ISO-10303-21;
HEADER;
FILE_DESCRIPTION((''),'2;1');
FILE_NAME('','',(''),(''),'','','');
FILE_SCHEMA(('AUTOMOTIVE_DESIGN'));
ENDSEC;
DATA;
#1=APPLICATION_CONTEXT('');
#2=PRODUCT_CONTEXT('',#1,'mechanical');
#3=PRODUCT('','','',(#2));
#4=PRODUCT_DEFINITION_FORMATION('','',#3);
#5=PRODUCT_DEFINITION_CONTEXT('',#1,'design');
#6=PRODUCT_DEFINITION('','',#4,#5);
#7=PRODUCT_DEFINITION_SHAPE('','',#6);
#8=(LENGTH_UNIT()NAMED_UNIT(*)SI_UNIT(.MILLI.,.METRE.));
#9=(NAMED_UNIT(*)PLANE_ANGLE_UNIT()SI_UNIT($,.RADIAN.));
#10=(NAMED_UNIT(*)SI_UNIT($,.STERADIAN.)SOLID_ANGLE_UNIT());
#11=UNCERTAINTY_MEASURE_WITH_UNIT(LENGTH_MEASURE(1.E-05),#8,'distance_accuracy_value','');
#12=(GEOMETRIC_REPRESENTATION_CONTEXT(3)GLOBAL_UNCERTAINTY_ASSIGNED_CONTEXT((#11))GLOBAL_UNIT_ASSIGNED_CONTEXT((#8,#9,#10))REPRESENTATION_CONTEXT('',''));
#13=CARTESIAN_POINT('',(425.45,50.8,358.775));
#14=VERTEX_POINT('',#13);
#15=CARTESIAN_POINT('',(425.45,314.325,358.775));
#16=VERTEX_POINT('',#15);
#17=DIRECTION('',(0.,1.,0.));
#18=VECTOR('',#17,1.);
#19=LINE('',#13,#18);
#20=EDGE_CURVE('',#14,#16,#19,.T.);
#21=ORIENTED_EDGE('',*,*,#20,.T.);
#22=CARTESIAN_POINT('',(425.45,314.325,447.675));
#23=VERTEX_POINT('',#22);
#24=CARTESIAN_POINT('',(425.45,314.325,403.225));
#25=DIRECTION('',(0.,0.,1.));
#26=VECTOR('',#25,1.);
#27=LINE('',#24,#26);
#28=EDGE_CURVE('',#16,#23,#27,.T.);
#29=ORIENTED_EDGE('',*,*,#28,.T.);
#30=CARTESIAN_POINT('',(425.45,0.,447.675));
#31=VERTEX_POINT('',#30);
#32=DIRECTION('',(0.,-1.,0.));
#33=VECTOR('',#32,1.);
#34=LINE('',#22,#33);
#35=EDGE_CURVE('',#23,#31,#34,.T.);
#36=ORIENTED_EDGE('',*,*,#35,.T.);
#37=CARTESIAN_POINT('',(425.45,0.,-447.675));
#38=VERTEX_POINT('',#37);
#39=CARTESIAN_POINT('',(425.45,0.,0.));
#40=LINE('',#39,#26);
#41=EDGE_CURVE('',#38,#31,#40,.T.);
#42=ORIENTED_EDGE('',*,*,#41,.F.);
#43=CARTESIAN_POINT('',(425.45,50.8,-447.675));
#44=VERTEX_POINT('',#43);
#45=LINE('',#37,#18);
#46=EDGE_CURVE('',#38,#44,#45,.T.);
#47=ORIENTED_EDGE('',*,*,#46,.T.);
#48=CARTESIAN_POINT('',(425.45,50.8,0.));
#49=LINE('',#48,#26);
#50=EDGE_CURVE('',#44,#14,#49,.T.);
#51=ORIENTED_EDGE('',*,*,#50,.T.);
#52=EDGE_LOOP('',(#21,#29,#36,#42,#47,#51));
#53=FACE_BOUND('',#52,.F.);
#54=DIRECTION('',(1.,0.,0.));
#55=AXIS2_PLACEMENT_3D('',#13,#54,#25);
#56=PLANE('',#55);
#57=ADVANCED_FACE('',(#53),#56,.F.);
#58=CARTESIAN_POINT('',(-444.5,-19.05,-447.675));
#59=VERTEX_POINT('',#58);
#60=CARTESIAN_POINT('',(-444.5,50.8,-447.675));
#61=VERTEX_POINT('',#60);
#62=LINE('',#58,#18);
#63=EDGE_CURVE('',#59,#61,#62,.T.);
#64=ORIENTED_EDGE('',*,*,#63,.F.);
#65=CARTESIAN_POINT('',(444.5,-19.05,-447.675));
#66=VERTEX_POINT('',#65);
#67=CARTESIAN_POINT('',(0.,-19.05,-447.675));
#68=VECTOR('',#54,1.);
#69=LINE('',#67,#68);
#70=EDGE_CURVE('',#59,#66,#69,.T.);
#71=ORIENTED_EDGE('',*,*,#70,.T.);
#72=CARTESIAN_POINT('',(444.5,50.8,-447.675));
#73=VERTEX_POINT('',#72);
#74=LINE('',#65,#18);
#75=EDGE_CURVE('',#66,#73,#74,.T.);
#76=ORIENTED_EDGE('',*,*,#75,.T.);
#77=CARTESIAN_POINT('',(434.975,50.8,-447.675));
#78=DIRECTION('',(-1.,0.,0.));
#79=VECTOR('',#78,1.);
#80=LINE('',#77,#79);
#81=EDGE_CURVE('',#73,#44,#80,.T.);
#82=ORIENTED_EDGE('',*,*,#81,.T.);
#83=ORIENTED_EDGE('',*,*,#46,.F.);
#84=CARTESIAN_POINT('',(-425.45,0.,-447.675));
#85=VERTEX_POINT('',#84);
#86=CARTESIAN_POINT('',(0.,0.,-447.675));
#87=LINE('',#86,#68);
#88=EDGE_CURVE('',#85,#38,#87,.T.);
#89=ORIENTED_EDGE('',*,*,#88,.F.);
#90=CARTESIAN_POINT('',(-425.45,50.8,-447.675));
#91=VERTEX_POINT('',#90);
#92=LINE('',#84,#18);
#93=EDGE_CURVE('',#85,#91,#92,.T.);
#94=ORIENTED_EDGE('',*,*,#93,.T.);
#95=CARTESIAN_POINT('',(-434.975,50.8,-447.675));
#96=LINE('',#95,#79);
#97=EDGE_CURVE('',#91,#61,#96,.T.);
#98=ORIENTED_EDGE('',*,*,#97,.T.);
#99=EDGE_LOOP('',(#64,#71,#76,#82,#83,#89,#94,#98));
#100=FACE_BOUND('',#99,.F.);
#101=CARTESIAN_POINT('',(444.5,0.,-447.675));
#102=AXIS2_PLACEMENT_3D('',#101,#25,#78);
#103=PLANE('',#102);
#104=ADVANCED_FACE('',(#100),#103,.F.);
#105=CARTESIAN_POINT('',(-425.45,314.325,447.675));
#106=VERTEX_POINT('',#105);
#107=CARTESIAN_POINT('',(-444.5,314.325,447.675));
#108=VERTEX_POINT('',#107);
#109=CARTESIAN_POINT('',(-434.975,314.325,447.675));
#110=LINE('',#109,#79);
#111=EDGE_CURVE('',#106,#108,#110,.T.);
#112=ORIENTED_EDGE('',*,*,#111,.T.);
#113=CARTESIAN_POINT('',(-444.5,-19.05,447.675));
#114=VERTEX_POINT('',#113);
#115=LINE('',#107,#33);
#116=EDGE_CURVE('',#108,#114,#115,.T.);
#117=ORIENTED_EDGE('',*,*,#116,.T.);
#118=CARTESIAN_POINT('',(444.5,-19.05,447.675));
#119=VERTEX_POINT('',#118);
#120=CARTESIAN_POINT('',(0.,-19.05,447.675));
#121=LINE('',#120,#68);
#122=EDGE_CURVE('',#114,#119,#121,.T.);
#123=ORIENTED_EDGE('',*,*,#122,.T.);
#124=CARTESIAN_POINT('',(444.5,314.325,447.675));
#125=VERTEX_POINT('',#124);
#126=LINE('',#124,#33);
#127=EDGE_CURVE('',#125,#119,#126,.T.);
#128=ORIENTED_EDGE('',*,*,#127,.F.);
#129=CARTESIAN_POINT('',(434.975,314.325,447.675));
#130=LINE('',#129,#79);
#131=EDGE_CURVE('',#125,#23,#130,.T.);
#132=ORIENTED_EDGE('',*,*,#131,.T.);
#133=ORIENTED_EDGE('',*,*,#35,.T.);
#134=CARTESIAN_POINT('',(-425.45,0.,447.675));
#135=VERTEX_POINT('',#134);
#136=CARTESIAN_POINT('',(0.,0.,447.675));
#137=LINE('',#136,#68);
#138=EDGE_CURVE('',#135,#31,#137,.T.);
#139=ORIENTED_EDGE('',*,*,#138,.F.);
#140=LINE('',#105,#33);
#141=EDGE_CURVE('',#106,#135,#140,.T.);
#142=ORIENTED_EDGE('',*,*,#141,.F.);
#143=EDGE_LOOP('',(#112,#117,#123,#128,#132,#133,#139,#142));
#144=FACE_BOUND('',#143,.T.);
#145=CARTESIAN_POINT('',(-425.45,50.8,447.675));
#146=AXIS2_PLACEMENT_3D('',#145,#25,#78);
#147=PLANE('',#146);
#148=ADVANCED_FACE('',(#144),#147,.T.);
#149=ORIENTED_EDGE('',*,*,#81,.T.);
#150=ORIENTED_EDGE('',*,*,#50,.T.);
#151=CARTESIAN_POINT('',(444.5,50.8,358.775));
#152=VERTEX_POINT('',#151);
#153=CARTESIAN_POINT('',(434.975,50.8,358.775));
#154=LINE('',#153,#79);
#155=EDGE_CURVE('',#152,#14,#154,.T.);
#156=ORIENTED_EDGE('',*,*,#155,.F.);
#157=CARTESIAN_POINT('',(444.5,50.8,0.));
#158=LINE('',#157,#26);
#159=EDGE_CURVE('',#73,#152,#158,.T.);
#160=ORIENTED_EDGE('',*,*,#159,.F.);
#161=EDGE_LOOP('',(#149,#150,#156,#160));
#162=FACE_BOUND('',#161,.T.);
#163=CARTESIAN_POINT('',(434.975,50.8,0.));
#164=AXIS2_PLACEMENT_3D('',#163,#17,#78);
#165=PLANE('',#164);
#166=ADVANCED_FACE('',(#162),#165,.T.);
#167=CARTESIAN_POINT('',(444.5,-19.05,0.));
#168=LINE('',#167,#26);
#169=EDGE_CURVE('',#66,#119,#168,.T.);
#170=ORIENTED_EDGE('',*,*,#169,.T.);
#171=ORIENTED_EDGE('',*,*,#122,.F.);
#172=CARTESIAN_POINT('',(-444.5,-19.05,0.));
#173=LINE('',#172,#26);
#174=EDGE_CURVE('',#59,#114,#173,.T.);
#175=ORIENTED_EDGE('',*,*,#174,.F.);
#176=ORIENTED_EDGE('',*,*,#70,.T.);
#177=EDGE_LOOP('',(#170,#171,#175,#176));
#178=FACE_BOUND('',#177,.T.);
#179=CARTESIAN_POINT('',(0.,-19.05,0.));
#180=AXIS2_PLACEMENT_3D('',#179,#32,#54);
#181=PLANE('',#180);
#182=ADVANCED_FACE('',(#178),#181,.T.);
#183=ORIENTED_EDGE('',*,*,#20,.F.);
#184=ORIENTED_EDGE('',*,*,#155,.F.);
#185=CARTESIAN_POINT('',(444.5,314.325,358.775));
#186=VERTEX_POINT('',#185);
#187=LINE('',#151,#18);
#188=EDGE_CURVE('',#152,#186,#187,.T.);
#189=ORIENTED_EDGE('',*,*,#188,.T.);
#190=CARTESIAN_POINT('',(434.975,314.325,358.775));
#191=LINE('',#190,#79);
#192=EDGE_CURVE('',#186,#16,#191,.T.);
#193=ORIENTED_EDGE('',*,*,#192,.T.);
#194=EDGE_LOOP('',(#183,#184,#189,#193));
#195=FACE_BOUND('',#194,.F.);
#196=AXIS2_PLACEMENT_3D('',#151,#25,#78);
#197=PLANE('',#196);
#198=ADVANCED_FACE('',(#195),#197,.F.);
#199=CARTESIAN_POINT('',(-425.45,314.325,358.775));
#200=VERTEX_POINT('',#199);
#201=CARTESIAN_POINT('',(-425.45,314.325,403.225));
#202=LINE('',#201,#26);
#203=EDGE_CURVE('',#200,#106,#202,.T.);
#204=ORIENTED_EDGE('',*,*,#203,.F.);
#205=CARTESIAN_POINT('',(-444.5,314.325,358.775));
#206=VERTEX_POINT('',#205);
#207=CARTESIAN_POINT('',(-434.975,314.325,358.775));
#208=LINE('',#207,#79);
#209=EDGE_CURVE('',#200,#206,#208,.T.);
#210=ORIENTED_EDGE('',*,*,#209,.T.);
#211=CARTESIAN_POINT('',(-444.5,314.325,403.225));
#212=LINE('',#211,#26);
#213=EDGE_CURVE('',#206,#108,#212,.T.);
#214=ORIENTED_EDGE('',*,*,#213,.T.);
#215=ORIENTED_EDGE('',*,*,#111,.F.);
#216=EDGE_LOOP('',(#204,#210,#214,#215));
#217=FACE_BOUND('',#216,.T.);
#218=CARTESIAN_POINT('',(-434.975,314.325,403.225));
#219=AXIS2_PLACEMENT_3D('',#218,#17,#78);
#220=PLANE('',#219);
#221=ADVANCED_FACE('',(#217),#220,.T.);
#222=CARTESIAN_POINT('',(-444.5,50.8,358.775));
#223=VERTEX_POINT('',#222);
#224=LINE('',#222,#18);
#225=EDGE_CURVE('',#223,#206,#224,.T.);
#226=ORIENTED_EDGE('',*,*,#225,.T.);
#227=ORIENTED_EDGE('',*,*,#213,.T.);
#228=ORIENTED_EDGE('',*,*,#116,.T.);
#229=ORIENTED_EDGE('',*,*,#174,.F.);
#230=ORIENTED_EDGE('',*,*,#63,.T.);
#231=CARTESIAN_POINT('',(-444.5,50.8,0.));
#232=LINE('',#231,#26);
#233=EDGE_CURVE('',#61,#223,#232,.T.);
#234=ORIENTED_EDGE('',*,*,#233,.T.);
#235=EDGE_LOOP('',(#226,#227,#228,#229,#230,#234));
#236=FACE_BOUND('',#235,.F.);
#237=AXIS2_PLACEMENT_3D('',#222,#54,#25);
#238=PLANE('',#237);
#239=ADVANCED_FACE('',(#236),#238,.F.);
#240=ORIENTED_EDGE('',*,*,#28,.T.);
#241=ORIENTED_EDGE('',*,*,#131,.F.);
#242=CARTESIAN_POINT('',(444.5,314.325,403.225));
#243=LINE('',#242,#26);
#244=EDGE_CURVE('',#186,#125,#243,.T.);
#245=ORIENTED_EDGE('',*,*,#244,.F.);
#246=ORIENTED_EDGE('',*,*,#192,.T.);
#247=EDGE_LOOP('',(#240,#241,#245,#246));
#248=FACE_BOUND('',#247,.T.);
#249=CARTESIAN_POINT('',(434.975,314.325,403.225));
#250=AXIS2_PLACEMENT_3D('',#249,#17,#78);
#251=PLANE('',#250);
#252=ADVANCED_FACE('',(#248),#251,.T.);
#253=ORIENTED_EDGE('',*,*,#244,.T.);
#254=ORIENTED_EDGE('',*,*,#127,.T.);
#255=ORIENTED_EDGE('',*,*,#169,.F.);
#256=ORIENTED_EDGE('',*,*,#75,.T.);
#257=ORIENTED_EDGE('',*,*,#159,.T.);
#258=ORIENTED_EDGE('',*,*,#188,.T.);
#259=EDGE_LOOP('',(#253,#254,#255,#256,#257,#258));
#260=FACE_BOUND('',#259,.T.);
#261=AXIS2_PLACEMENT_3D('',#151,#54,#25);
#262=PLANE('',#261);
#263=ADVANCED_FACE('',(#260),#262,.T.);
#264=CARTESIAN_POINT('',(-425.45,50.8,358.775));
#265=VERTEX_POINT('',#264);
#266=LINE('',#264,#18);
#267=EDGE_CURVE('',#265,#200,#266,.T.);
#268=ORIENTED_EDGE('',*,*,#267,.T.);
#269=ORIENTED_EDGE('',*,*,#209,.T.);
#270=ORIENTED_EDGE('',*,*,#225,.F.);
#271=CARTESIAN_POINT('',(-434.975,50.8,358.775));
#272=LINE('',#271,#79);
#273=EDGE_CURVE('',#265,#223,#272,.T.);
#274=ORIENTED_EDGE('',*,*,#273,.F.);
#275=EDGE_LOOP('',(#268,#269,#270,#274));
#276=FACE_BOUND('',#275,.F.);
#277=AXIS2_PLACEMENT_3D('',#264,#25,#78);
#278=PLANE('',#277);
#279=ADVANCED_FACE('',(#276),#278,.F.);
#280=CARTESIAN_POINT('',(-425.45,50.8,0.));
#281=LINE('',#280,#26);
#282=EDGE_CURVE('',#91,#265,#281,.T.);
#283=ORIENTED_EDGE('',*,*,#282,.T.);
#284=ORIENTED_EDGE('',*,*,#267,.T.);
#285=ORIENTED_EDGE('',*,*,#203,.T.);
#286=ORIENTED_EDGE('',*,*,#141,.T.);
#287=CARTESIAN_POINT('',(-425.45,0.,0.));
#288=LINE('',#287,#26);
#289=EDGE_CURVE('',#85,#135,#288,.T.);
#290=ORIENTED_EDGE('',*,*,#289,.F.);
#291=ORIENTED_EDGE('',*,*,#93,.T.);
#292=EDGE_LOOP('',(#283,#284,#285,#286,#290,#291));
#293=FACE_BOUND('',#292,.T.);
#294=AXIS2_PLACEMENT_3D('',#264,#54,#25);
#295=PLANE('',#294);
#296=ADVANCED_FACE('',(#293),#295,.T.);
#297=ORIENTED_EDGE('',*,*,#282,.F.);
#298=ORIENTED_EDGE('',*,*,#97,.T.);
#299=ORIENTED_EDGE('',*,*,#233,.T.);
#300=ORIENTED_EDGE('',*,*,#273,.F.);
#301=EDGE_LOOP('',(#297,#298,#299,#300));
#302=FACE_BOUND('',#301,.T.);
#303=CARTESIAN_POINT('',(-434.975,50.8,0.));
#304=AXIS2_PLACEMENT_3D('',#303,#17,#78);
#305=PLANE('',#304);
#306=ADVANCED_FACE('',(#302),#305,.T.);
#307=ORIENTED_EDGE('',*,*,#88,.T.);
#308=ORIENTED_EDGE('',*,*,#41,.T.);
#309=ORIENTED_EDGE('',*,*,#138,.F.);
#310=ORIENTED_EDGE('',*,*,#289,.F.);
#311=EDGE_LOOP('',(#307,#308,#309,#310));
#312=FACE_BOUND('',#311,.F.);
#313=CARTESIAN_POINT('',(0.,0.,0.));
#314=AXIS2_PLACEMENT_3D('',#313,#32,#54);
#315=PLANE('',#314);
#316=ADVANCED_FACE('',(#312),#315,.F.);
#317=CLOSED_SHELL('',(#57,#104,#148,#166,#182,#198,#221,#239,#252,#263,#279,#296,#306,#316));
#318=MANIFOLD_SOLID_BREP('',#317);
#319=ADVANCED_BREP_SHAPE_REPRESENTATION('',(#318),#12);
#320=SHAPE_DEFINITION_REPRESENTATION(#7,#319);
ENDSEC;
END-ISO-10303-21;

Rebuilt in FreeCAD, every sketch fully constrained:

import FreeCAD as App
import Part
import Sketcher
Q = App.Units.Quantity


def add_polygon(sketch, points):
    """Adds a closed chain of lines whose ends are joined by coincident constraints."""
    first, n = sketch.GeometryCount, len(points)
    for a, b in zip(points, points[1:] + points[:1]):
        sketch.addGeometry(Part.LineSegment(App.Vector(*a, 0), App.Vector(*b, 0)), False)
    for i in range(n):
        sketch.addConstraint(Sketcher.Constraint("Coincident", first + i, 2, first + (i + 1) % n, 1))

doc = App.newDocument("Part")
body = doc.addObject("PartDesign::Body", "Body")

sketch1 = body.newObject("Sketcher::SketchObject", "Sketch")
sketch1.AttachmentSupport = (doc.getObject("XZ_Plane"), [""])
sketch1.MapMode = "FlatFace"
add_polygon(sketch1, [(-444.5, 447.675), (-444.5, -447.675), (444.5, -447.675), (444.5, 447.675)])
sketch1.addConstraint(Sketcher.Constraint("Vertical", 0))
sketch1.addConstraint(Sketcher.Constraint("Horizontal", 1))
sketch1.addConstraint(Sketcher.Constraint("Vertical", 2))
sketch1.addConstraint(Sketcher.Constraint("Horizontal", 3))
sketch1.addConstraint(Sketcher.Constraint("Symmetric", 0, 2, 2, 2, -1, 1))
sketch1.addConstraint(Sketcher.Constraint("DistanceX", 1, 1, 1, 2, Q("35 in")))
sketch1.addConstraint(Sketcher.Constraint("DistanceY", 0, 2, 0, 1, Q("35.25 in")))
pad1 = body.newObject("PartDesign::Pad", "Pad")
pad1.Profile = sketch1
pad1.Length = Q("0.75 in")

sketch2 = body.newObject("Sketcher::SketchObject", "Sketch001")
sketch2.AttachmentSupport = (doc.getObject("XZ_Plane"), [""])
sketch2.MapMode = "FlatFace"
add_polygon(sketch2, [(444.5, 447.675), (444.5, -447.675), (425.45, -447.675), (425.45, 447.675)])
add_polygon(sketch2, [(-425.45, 447.675), (-425.45, -447.675), (-444.5, -447.675), (-444.5, 447.675)])
sketch2.addConstraint(Sketcher.Constraint("Vertical", 0))
sketch2.addConstraint(Sketcher.Constraint("Horizontal", 1))
sketch2.addConstraint(Sketcher.Constraint("Vertical", 2))
sketch2.addConstraint(Sketcher.Constraint("Horizontal", 3))
sketch2.addConstraint(Sketcher.Constraint("Vertical", 4))
sketch2.addConstraint(Sketcher.Constraint("Horizontal", 5))
sketch2.addConstraint(Sketcher.Constraint("Vertical", 6))
sketch2.addConstraint(Sketcher.Constraint("Horizontal", 7))
sketch2.addConstraint(Sketcher.Constraint("Symmetric", 2, 2, 4, 2, -1, 1))
sketch2.addConstraint(Sketcher.Constraint("Symmetric", 0, 2, 6, 2, -1, 1))
sketch2.addConstraint(Sketcher.Constraint("Horizontal", 1, 2, 4, 2))
sketch2.addConstraint(Sketcher.Constraint("DistanceX", 5, 2, 0, 2, Q("35 in")))
sketch2.addConstraint(Sketcher.Constraint("DistanceX", 1, 2, 1, 1, Q("0.75 in")))
sketch2.addConstraint(Sketcher.Constraint("DistanceY", 0, 2, 0, 1, Q("35.25 in")))
pad2 = body.newObject("PartDesign::Pad", "Pad001")
pad2.Profile = sketch2
pad2.Length = Q("2 in")
pad2.Reversed = True

sketch3 = body.newObject("Sketcher::SketchObject", "Sketch002")
sketch3.AttachmentSupport = (doc.getObject("XZ_Plane"), [""])
sketch3.MapMode = "FlatFace"
sketch3.AttachmentOffset = App.Placement(App.Vector(0, 0, -2 * 25.4), App.Rotation())
add_polygon(sketch3, [(444.5, 447.675), (444.5, 358.775), (425.45, 358.775), (425.45, 447.675)])
sketch3.addConstraint(Sketcher.Constraint("Vertical", 0))
sketch3.addConstraint(Sketcher.Constraint("Horizontal", 1))
sketch3.addConstraint(Sketcher.Constraint("Vertical", 2))
sketch3.addConstraint(Sketcher.Constraint("Horizontal", 3))
sketch3.addConstraint(Sketcher.Constraint("DistanceY", 0, 2, 0, 1, Q("3.5 in")))
sketch3.addConstraint(Sketcher.Constraint("DistanceX", 1, 2, 1, 1, Q("0.75 in")))
sketch3.addConstraint(Sketcher.Constraint("DistanceX", -1, 1, 0, 2, Q("17.5 in")))
sketch3.addConstraint(Sketcher.Constraint("DistanceY", -1, 1, 0, 2, Q("14.125 in")))
pad3 = body.newObject("PartDesign::Pad", "Pad002")
pad3.Profile = sketch3
pad3.Length = Q("10.375 in")
pad3.Reversed = True

sketch4 = body.newObject("Sketcher::SketchObject", "Sketch003")
sketch4.AttachmentSupport = (doc.getObject("XZ_Plane"), [""])
sketch4.MapMode = "FlatFace"
sketch4.AttachmentOffset = App.Placement(App.Vector(0, 0, -2 * 25.4), App.Rotation())
add_polygon(sketch4, [(-425.45, 447.675), (-425.45, 358.775), (-444.5, 358.775), (-444.5, 447.675)])
sketch4.addConstraint(Sketcher.Constraint("Vertical", 0))
sketch4.addConstraint(Sketcher.Constraint("Horizontal", 1))
sketch4.addConstraint(Sketcher.Constraint("Vertical", 2))
sketch4.addConstraint(Sketcher.Constraint("Horizontal", 3))
sketch4.addConstraint(Sketcher.Constraint("DistanceY", 0, 2, 0, 1, Q("3.5 in")))
sketch4.addConstraint(Sketcher.Constraint("DistanceX", 1, 2, 1, 1, Q("0.75 in")))
sketch4.addConstraint(Sketcher.Constraint("DistanceX", 1, 2, -1, 1, Q("17.5 in")))
sketch4.addConstraint(Sketcher.Constraint("DistanceY", -1, 1, 0, 2, Q("14.125 in")))
pad4 = body.newObject("PartDesign::Pad", "Pad003")
pad4.Profile = sketch4
pad4.Length = Q("10.375 in")
pad4.Reversed = True

doc.recompute()
